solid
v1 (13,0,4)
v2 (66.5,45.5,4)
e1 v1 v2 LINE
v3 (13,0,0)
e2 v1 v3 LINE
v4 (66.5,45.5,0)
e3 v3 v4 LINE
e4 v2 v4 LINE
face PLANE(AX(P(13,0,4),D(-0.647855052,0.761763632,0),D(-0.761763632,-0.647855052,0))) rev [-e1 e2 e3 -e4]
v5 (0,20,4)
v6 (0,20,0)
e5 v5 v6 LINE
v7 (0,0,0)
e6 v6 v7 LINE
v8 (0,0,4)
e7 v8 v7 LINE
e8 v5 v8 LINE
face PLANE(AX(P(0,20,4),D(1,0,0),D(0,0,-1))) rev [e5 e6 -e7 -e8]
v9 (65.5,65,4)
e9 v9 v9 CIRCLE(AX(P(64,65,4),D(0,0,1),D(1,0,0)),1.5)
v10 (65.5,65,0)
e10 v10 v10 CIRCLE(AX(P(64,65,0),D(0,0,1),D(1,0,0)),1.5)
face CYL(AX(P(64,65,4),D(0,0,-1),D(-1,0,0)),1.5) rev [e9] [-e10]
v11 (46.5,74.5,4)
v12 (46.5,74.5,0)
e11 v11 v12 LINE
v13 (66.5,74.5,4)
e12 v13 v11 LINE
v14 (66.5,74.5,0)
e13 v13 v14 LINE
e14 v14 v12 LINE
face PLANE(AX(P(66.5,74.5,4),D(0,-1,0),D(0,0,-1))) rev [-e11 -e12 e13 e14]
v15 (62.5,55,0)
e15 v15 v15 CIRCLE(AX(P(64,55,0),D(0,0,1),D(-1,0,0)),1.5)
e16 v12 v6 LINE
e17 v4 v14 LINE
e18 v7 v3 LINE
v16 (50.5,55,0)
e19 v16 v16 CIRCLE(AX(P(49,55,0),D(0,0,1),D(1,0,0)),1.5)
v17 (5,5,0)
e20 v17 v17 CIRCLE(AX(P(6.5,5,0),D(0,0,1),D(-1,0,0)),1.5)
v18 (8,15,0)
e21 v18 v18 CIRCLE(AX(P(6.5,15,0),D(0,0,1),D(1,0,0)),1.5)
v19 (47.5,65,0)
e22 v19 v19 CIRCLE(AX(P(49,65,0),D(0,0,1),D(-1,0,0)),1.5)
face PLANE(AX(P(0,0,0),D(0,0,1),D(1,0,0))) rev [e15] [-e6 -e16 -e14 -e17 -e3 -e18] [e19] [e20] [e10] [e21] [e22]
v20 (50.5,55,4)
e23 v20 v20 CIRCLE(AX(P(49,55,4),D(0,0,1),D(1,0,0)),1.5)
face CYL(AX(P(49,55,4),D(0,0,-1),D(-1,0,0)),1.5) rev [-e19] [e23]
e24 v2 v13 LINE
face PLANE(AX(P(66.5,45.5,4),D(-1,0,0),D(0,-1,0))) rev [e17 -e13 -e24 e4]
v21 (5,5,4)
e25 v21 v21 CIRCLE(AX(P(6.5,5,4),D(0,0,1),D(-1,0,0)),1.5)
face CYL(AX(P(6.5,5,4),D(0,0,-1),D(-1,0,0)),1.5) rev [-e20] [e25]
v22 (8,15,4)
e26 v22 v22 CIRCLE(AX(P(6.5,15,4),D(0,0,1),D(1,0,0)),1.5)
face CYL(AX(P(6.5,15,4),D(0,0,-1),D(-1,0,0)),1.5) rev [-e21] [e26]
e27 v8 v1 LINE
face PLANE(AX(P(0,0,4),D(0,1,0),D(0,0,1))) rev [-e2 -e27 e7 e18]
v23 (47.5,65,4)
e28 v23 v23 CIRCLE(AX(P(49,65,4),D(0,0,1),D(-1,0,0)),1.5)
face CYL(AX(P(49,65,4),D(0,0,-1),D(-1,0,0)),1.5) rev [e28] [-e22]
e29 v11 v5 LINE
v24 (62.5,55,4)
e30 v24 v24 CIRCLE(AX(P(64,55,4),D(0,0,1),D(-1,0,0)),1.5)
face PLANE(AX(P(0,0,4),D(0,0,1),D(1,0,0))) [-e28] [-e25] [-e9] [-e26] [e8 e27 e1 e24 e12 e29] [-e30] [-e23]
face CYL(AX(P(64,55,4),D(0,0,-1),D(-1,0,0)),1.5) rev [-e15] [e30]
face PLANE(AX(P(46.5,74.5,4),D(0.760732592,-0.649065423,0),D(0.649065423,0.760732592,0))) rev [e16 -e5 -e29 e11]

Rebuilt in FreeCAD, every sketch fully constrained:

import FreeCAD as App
import Part
import Sketcher

doc = App.newDocument("Part")
body = doc.addObject("PartDesign::Body", "Body")

# Sketch on XY plane
sketch1 = body.newObject("Sketcher::SketchObject", "Sketch")
sketch1.AttachmentSupport = (doc.getObject("XY_Plane"), [""])
sketch1.MapMode = "FlatFace"
sketch1.addGeometry(Part.LineSegment(App.Vector(0, 0, 0), App.Vector(13, 0, 0)), False)
sketch1.addGeometry(Part.LineSegment(App.Vector(13, 0, 0), App.Vector(66.5, 45.5, 0)), False)
sketch1.addGeometry(Part.LineSegment(App.Vector(66.5, 45.5, 0), App.Vector(66.5, 74.5, 0)), False)
sketch1.addGeometry(Part.LineSegment(App.Vector(66.5, 74.5, 0), App.Vector(46.5, 74.5, 0)), False)
sketch1.addGeometry(Part.LineSegment(App.Vector(46.5, 74.5, 0), App.Vector(0, 20, 0)), False)
sketch1.addGeometry(Part.LineSegment(App.Vector(0, 20, 0), App.Vector(0, 0, 0)), False)
sketch1.addGeometry(Part.Circle(App.Vector(6.5, 5, 0), App.Vector(0, 0, 1), 1.5), False)
sketch1.addGeometry(Part.Circle(App.Vector(6.5, 15, 0), App.Vector(0, 0, 1), 1.5), False)
sketch1.addGeometry(Part.Circle(App.Vector(49, 55, 0), App.Vector(0, 0, 1), 1.5), False)
sketch1.addGeometry(Part.Circle(App.Vector(49, 65, 0), App.Vector(0, 0, 1), 1.5), False)
sketch1.addGeometry(Part.Circle(App.Vector(64, 55, 0), App.Vector(0, 0, 1), 1.5), False)
sketch1.addGeometry(Part.Circle(App.Vector(64, 65, 0), App.Vector(0, 0, 1), 1.5), False)
sketch1.addConstraint(Sketcher.Constraint("Coincident", 0, 2, 1, 1))
sketch1.addConstraint(Sketcher.Constraint("Coincident", 1, 2, 2, 1))
sketch1.addConstraint(Sketcher.Constraint("Coincident", 2, 2, 3, 1))
sketch1.addConstraint(Sketcher.Constraint("Coincident", 3, 2, 4, 1))
sketch1.addConstraint(Sketcher.Constraint("Coincident", 4, 2, 5, 1))
sketch1.addConstraint(Sketcher.Constraint("Coincident", 5, 2, 0, 1))
sketch1.addConstraint(Sketcher.Constraint("Horizontal", 0))
sketch1.addConstraint(Sketcher.Constraint("Vertical", 2))
sketch1.addConstraint(Sketcher.Constraint("Horizontal", 3))
sketch1.addConstraint(Sketcher.Constraint("Vertical", 5))
sketch1.addConstraint(Sketcher.Constraint("Coincident", 5, 2, -1, 1))
sketch1.addConstraint(Sketcher.Constraint("Equal", 6, 7))
sketch1.addConstraint(Sketcher.Constraint("Equal", 7, 8))
sketch1.addConstraint(Sketcher.Constraint("Equal", 8, 9))
sketch1.addConstraint(Sketcher.Constraint("Equal", 9, 10))
sketch1.addConstraint(Sketcher.Constraint("Equal", 10, 11))
sketch1.addConstraint(Sketcher.Constraint("Horizontal", 8, 3, 10, 3))
sketch1.addConstraint(Sketcher.Constraint("Horizontal", 9, 3, 11, 3))
sketch1.addConstraint(Sketcher.Constraint("Vertical", 6, 3, 7, 3))
sketch1.addConstraint(Sketcher.Constraint("Vertical", 8, 3, 9, 3))
sketch1.addConstraint(Sketcher.Constraint("Vertical", 10, 3, 11, 3))
sketch1.addConstraint(Sketcher.Constraint("Equal", 3, 5))
sketch1.addConstraint(Sketcher.Constraint("Diameter", 6, 3.0))
sketch1.addConstraint(Sketcher.Constraint("DistanceX", 0, 1, 0, 2, 13.0))
sketch1.addConstraint(Sketcher.Constraint("DistanceX", 3, 2, 3, 1, 20.0))
sketch1.addConstraint(Sketcher.Constraint("DistanceY", 2, 1, 2, 2, 29.0))
sketch1.addConstraint(Sketcher.Constraint("DistanceY", -1, 1, 6, 3, 5.0))
sketch1.addConstraint(Sketcher.Constraint("DistanceY", -1, 1, 7, 3, 15.0))
sketch1.addConstraint(Sketcher.Constraint("DistanceX", -1, 1, 8, 3, 49.0))
sketch1.addConstraint(Sketcher.Constraint("DistanceY", -1, 1, 8, 3, 55.0))
sketch1.addConstraint(Sketcher.Constraint("DistanceY", -1, 1, 9, 3, 65.0))
sketch1.addConstraint(Sketcher.Constraint("DistanceX", -1, 1, 10, 3, 64.0))
sketch1.addConstraint(Sketcher.Constraint("DistanceX", 7, 3, 1, 2, 60.0))
sketch1.addConstraint(Sketcher.Constraint("DistanceX", -1, 1, 6, 3, 6.5))
sketch1.addConstraint(Sketcher.Constraint("DistanceY", -1, 1, 1, 2, 45.5))
pad1 = body.newObject("PartDesign::Pad", "Pad")
pad1.Profile = sketch1
pad1.Length = 4

doc.recompute()
